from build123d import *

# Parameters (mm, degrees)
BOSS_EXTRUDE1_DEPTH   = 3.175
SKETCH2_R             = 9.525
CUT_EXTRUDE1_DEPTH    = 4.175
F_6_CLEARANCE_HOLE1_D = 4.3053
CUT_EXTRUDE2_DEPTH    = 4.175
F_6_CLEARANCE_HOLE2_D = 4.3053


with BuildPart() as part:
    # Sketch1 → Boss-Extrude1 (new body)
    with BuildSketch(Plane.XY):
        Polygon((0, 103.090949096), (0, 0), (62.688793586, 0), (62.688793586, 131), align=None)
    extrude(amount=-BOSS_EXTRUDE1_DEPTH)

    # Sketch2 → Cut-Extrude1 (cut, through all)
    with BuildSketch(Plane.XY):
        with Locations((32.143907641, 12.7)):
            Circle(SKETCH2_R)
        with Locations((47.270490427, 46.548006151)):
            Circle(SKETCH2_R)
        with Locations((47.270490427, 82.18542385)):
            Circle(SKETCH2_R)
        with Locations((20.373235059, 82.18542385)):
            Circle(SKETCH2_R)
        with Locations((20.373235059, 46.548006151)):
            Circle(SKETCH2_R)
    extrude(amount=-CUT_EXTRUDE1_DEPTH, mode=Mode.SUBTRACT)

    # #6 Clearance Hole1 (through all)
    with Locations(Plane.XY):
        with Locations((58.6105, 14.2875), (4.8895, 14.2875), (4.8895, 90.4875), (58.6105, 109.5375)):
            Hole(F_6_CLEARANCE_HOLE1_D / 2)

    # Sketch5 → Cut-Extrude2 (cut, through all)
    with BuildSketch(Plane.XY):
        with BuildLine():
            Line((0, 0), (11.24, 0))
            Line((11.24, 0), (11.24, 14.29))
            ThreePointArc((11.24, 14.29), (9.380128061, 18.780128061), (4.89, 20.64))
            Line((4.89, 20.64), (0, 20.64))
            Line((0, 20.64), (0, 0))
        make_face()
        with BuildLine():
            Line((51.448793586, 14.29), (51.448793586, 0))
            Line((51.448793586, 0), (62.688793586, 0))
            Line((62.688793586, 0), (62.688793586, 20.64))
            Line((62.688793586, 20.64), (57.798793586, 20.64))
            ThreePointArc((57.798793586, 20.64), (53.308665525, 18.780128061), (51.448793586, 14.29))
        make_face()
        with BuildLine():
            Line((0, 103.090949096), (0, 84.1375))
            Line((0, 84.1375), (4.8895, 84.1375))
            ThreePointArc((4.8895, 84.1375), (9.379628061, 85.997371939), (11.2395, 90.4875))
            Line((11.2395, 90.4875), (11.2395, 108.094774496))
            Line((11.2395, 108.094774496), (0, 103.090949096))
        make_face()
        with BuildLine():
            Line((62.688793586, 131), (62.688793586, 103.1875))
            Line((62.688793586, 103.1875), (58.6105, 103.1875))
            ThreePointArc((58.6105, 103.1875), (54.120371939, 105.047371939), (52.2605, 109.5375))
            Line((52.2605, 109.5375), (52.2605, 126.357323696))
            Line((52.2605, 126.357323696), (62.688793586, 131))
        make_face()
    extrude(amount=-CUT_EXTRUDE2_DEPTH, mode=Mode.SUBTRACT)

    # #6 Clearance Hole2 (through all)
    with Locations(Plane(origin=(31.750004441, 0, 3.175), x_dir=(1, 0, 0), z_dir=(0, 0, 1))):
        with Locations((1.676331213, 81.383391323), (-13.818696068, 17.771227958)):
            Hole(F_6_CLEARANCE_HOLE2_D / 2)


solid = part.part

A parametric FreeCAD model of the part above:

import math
import FreeCAD as App
import Part
import Sketcher
Q = App.Units.Quantity


def add_polygon(sketch, points):
    """Adds a closed chain of lines whose ends are joined by coincident constraints."""
    first, n = sketch.GeometryCount, len(points)
    for a, b in zip(points, points[1:] + points[:1]):
        sketch.addGeometry(Part.LineSegment(App.Vector(*a, 0), App.Vector(*b, 0)), False)
    for i in range(n):
        sketch.addConstraint(Sketcher.Constraint("Coincident", first + i, 2, first + (i + 1) % n, 1))

doc = App.newDocument("Part")
body = doc.addObject("PartDesign::Body", "Body")

# Sketch on XY plane
sketch1 = body.newObject("Sketcher::SketchObject", "Sketch")
sketch1.AttachmentSupport = (doc.getObject("XY_Plane"), [""])
sketch1.MapMode = "FlatFace"
add_polygon(sketch1, [(0, 103), (0, 0), (63, 0), (63, 131)])  # lines 0-3
sketch1.addConstraint([
    Sketcher.Constraint("Vertical", 0),
    Sketcher.Constraint("Horizontal", 1),
    Sketcher.Constraint("Vertical", 2),
    Sketcher.Constraint("Coincident", 0, 2, -1, 1),
    Sketcher.Constraint("DistanceY", 2, 1, 2, 2, 131.0),
    Sketcher.Constraint("DistanceY", 0, 2, 0, 1, 103.090949),
    Sketcher.Constraint("DistanceX", 1, 1, 1, 2, 62.688794),
])
pad1 = body.newObject("PartDesign::Pad", "Pad")
pad1.Profile = sketch1
pad1.Length = Q("0.125 in")
pad1.Reversed = True

# Sketch on XY plane
sketch2 = body.newObject("Sketcher::SketchObject", "Sketch001")
sketch2.AttachmentSupport = (doc.getObject("XY_Plane"), [""])
sketch2.MapMode = "FlatFace"
sketch2.addGeometry([
    Part.Circle(App.Vector(32, 13, 0), App.Vector(0, 0, 1), 10),  # 0
    Part.Circle(App.Vector(47, 47, 0), App.Vector(0, 0, 1), 10),  # 1
    Part.Circle(App.Vector(47, 82, 0), App.Vector(0, 0, 1), 10),  # 2
    Part.Circle(App.Vector(20, 82, 0), App.Vector(0, 0, 1), 10),  # 3
    Part.Circle(App.Vector(20, 47, 0), App.Vector(0, 0, 1), 10),  # 4
], False)
sketch2.addConstraint([
    Sketcher.Constraint("Equal", 0, 1),
    Sketcher.Constraint("Equal", 1, 2),
    Sketcher.Constraint("Equal", 2, 3),
    Sketcher.Constraint("Equal", 3, 4),
    Sketcher.Constraint("Horizontal", 2, 3, 3, 3),
    Sketcher.Constraint("Horizontal", 1, 3, 4, 3),
    Sketcher.Constraint("Vertical", 1, 3, 2, 3),
    Sketcher.Constraint("Vertical", 3, 3, 4, 3),
    Sketcher.Constraint("Diameter", 0, Q("0.75 in")),
    Sketcher.Constraint("DistanceY", -1, 1, 0, 3, Q("0.5 in")),
    Sketcher.Constraint("DistanceX", -1, 1, 1, 3, 47.27049),
    Sketcher.Constraint("DistanceX", -1, 1, 0, 3, 32.143908),
    Sketcher.Constraint("DistanceY", -1, 1, 1, 3, 46.548006),
    Sketcher.Constraint("DistanceY", -1, 1, 2, 3, 82.185424),
    Sketcher.Constraint("DistanceX", -1, 1, 3, 3, 20.373235),
])
pocket1 = body.newObject("PartDesign::Pocket", "Pocket")
pocket1.Profile = sketch2
pocket1.Type = "ThroughAll"

# Sketch on XY plane
sketch3 = body.newObject("Sketcher::SketchObject", "Sketch002")
sketch3.AttachmentSupport = (doc.getObject("XY_Plane"), [""])
sketch3.MapMode = "FlatFace"
sketch3.addGeometry([
    Part.Circle(App.Vector(58.6, 14.3, 0), App.Vector(0, 0, 1), 2.2),
    Part.Circle(App.Vector(4.9, 14.3, 0), App.Vector(0, 0, 1), 2.2),
    Part.Circle(App.Vector(4.9, 90.5, 0), App.Vector(0, 0, 1), 2.2),
    Part.Circle(App.Vector(58.6, 109.5, 0), App.Vector(0, 0, 1), 2.2),
], False)
sketch3.addConstraint([
    Sketcher.Constraint("Equal", 0, 1),
    Sketcher.Constraint("Equal", 1, 2),
    Sketcher.Constraint("Equal", 2, 3),
    Sketcher.Constraint("Horizontal", 0, 3, 1, 3),
    Sketcher.Constraint("Vertical", 1, 3, 2, 3),
    Sketcher.Constraint("Vertical", 0, 3, 3, 3),
    Sketcher.Constraint("DistanceY", 1, 3, 2, 3, Q("3 in")),
    Sketcher.Constraint("Diameter", 0, Q("0.1695 in")),
    Sketcher.Constraint("DistanceY", 2, 3, 3, 3, Q("0.75 in")),
    Sketcher.Constraint("DistanceY", -1, 1, 0, 3, Q("0.5625 in")),
    Sketcher.Constraint("DistanceX", 1, 3, 0, 3, Q("2.115 in")),
    Sketcher.Constraint("DistanceX", -1, 1, 0, 3, Q("2.3075 in")),
])
doc.recompute()
hole = body.newObject("PartDesign::Hole", "Hole")
hole.Profile = sketch3
hole.ThreadType = "None"
hole.Diameter = Q("0.1695 in")
hole.DepthType = "ThroughAll"

# Sketch on XY plane
sketch4 = body.newObject("Sketcher::SketchObject", "Sketch003")
sketch4.AttachmentSupport = (doc.getObject("XY_Plane"), [""])
sketch4.MapMode = "FlatFace"
sketch4.addGeometry([
    Part.LineSegment(App.Vector(0, 0, 0), App.Vector(11.2, 0, 0)),  # 0
    Part.LineSegment(App.Vector(11.2, 0, 0), App.Vector(11.2, 14.3, 0)),  # 1
    Part.ArcOfCircle(Part.Circle(App.Vector(4.9, 14.3, 0), App.Vector(0, 0, 1), 6.3), math.radians(0), math.radians(90)),  # 2
    Part.LineSegment(App.Vector(4.9, 20.6, 0), App.Vector(0, 20.6, 0)),  # 3
    Part.LineSegment(App.Vector(0, 20.6, 0), App.Vector(0, 0, 0)),  # 4
    Part.LineSegment(App.Vector(51.4, 14.3, 0), App.Vector(51.4, 0, 0)),  # 5
    Part.LineSegment(App.Vector(51.4, 0, 0), App.Vector(62.7, 0, 0)),  # 6
    Part.LineSegment(App.Vector(62.7, 0, 0), App.Vector(62.7, 20.6, 0)),  # 7
    Part.LineSegment(App.Vector(62.7, 20.6, 0), App.Vector(57.8, 20.6, 0)),  # 8
    Part.ArcOfCircle(Part.Circle(App.Vector(57.8, 14.3, 0), App.Vector(0, 0, 1), 6.3), math.radians(90), math.radians(180)),  # 9
    Part.LineSegment(App.Vector(0, 103.1, 0), App.Vector(0, 84.1, 0)),  # 10
    Part.LineSegment(App.Vector(0, 84.1, 0), App.Vector(4.9, 84.1, 0)),  # 11
    Part.ArcOfCircle(Part.Circle(App.Vector(4.9, 90.5, 0), App.Vector(0, 0, 1), 6.3), math.radians(-90), math.radians(0)),  # 12
    Part.LineSegment(App.Vector(11.2, 90.5, 0), App.Vector(11.2, 108.1, 0)),  # 13
    Part.LineSegment(App.Vector(11.2, 108.1, 0), App.Vector(0, 103.1, 0)),  # 14
    Part.LineSegment(App.Vector(62.7, 103.2, 0), App.Vector(62.7, 131, 0)),  # 15
    Part.LineSegment(App.Vector(62.7, 131, 0), App.Vector(52.3, 126.4, 0)),  # 16
    Part.LineSegment(App.Vector(52.3, 126.4, 0), App.Vector(52.3, 109.5, 0)),  # 17
    Part.ArcOfCircle(Part.Circle(App.Vector(58.6, 109.5, 0), App.Vector(0, 0, 1), 6.3), math.radians(180), math.radians(270)),  # 18
    Part.LineSegment(App.Vector(58.6, 103.2, 0), App.Vector(62.7, 103.2, 0)),  # 19
], False)
sketch4.addConstraint([
    Sketcher.Constraint("Coincident", 0, 2, 1, 1),
    Sketcher.Constraint("Tangent", 1, 2, 2, 1),
    Sketcher.Constraint("Tangent", 2, 2, 3, 1),
    Sketcher.Constraint("Coincident", 3, 2, 4, 1),
    Sketcher.Constraint("Coincident", 4, 2, 0, 1),
    Sketcher.Constraint("Coincident", 5, 2, 6, 1),
    Sketcher.Constraint("Coincident", 6, 2, 7, 1),
    Sketcher.Constraint("Coincident", 7, 2, 8, 1),
    Sketcher.Constraint("Tangent", 8, 2, 9, 1),
    Sketcher.Constraint("Tangent", 9, 2, 5, 1),
    Sketcher.Constraint("Coincident", 10, 2, 11, 1),
    Sketcher.Constraint("Tangent", 11, 2, 12, 1),
    Sketcher.Constraint("Tangent", 12, 2, 13, 1),
    Sketcher.Constraint("Coincident", 13, 2, 14, 1),
    Sketcher.Constraint("Coincident", 14, 2, 10, 1),
    Sketcher.Constraint("Coincident", 15, 2, 16, 1),
    Sketcher.Constraint("Coincident", 16, 2, 17, 1),
    Sketcher.Constraint("Tangent", 17, 2, 18, 1),
    Sketcher.Constraint("Tangent", 18, 2, 19, 1),
    Sketcher.Constraint("Coincident", 19, 2, 15, 1),
    Sketcher.Constraint("Horizontal", 0),
    Sketcher.Constraint("Vertical", 1),
    Sketcher.Constraint("Horizontal", 3),
    Sketcher.Constraint("Vertical", 4),
    Sketcher.Constraint("Vertical", 5),
    Sketcher.Constraint("Horizontal", 6),
    Sketcher.Constraint("Vertical", 7),
    Sketcher.Constraint("Horizontal", 8),
    Sketcher.Constraint("Vertical", 10),
    Sketcher.Constraint("Horizontal", 11),
    Sketcher.Constraint("Vertical", 13),
    Sketcher.Constraint("Vertical", 15),
    Sketcher.Constraint("Vertical", 17),
    Sketcher.Constraint("Horizontal", 19),
    Sketcher.Constraint("Coincident", 4, 2, -1, 1),
    Sketcher.Constraint("Equal", 2, 9),
    Sketcher.Constraint("Equal", 9, 12),
    Sketcher.Constraint("Equal", 12, 18),
    Sketcher.Constraint("PointOnObject", 5, 2, -1),
    Sketcher.Constraint("PointOnObject", 10, 2, -2),
    Sketcher.Constraint("Parallel", 14, 16),
    Sketcher.Constraint("Horizontal", 2, 3, 9, 3),
    Sketcher.Constraint("Vertical", 7, 2, 15, 2),
    Sketcher.Constraint("Equal", 0, 6),
    Sketcher.Constraint("Radius", 2, Q("0.25 in")),
    Sketcher.Constraint("DistanceY", 10, 2, 18, 3, Q("1 in")),
    Sketcher.Constraint("DistanceX", 11, 1, 11, 2, Q("0.1925 in")),
    Sketcher.Constraint("DistanceY", -1, 1, 12, 3, Q("3.5625 in")),
    Sketcher.Constraint("DistanceX", 12, 3, 18, 3, Q("2.115 in")),
    Sketcher.Constraint("DistanceX", 0, 1, 0, 2, 11.24),
    Sketcher.Constraint("DistanceY", 1, 1, 1, 2, 14.29),
    Sketcher.Constraint("DistanceY", 15, 1, 15, 2, 27.8125),
    Sketcher.Constraint("DistanceY", 10, 2, 10, 1, 18.953449),
    Sketcher.Constraint("DistanceX", 19, 1, 19, 2, 4.078294),
    Sketcher.Constraint("DistanceY", 13, 1, 13, 2, 17.607274),
])
pocket2 = body.newObject("PartDesign::Pocket", "Pocket001")
pocket2.Profile = sketch4
pocket2.Type = "ThroughAll"

# Sketch on XY plane
sketch5 = body.newObject("Sketcher::SketchObject", "Sketch004")
sketch5.AttachmentSupport = (doc.getObject("XY_Plane"), [""])
sketch5.MapMode = "FlatFace"
sketch5.AttachmentOffset = App.Placement(App.Vector(0, 0, 0.125 * 25.4), App.Rotation())
sketch5.addGeometry([
    Part.Circle(App.Vector(33.4, 81.4, 0), App.Vector(0, 0, 1), 2.2),
    Part.Circle(App.Vector(17.9, 17.8, 0), App.Vector(0, 0, 1), 2.2),
], False)
sketch5.addConstraint([
    Sketcher.Constraint("Equal", 0, 1),
    Sketcher.Constraint("Diameter", 0, Q("0.1695 in")),
    Sketcher.Constraint("DistanceY", -1, 1, 0, 3, 81.383391),
    Sketcher.Constraint("DistanceX", -1, 1, 1, 3, 17.931308),
    Sketcher.Constraint("DistanceX", -1, 1, 0, 3, 33.426336),
    Sketcher.Constraint("DistanceY", -1, 1, 1, 3, 17.771228),
])
doc.recompute()
hole2 = body.newObject("PartDesign::Hole", "Hole001")
hole2.Profile = sketch5
hole2.ThreadType = "None"
hole2.Diameter = Q("0.1695 in")
hole2.DepthType = "ThroughAll"

doc.recompute()
